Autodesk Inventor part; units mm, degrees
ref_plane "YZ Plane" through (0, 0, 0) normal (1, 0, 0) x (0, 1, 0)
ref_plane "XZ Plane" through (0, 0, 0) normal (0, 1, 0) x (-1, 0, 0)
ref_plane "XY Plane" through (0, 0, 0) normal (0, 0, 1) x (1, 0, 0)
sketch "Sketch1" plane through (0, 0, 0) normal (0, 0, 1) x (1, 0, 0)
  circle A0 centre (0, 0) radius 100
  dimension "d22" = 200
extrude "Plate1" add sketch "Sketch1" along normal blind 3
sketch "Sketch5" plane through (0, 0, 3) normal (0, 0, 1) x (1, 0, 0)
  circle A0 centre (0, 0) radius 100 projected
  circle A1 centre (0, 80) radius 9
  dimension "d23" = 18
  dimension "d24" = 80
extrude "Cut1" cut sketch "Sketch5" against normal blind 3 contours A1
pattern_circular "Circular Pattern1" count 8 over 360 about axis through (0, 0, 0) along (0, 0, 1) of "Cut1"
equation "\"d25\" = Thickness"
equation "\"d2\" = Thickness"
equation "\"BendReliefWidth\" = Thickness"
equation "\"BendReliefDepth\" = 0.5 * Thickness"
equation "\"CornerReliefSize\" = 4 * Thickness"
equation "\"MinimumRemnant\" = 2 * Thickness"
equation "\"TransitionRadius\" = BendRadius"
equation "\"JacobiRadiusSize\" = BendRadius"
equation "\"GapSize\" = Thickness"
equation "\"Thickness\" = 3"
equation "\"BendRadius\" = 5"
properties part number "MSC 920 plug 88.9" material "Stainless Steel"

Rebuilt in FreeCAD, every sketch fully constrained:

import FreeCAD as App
import Part
import Sketcher
from FreeCAD import Vector

doc = App.newDocument("Part")
body = doc.addObject("PartDesign::Body", "Body")

# Sketch on XY plane
sketch1 = body.newObject("Sketcher::SketchObject", "Sketch")
sketch1.AttachmentSupport = (doc.getObject("XY_Plane"), [""])
sketch1.MapMode = "FlatFace"
sketch1.addGeometry(Part.Circle(Vector(0, 0, 0), Vector(0, 0, 1), 100), False)
sketch1.addConstraint(Sketcher.Constraint("Coincident", 0, 3, -1, 1))
sketch1.addConstraint(Sketcher.Constraint("Diameter", 0, 200.0))
pad1 = body.newObject("PartDesign::Pad", "Pad")
pad1.Profile = sketch1
pad1.Length = 3

# Sketch on XY plane
sketch2 = body.newObject("Sketcher::SketchObject", "Sketch001")
sketch2.AttachmentSupport = (doc.getObject("XY_Plane"), [""])
sketch2.MapMode = "FlatFace"
sketch2.AttachmentOffset = App.Placement(Vector(0, 0, 3), App.Rotation())
sketch2.addGeometry(Part.Circle(Vector(0, 80, 0), Vector(0, 0, 1), 9), False)
sketch2.addConstraint(Sketcher.Constraint("PointOnObject", 0, 3, -2))
sketch2.addConstraint(Sketcher.Constraint("Diameter", 0, 18.0))
sketch2.addConstraint(Sketcher.Constraint("DistanceY", -1, 1, 0, 3, 80.0))
pocket1 = body.newObject("PartDesign::Pocket", "Pocket")
pocket1.Profile = sketch2
pocket1.Length = 3
doc.recompute()

polarpattern = body.newObject("PartDesign::PolarPattern", "PolarPattern")
polarpattern.Originals = [pocket1]
polarpattern.Axis = (doc.getObject("Z_Axis"), [""])
polarpattern.Angle = 360
polarpattern.Occurrences = 8
body.Tip = polarpattern

doc.recompute()
